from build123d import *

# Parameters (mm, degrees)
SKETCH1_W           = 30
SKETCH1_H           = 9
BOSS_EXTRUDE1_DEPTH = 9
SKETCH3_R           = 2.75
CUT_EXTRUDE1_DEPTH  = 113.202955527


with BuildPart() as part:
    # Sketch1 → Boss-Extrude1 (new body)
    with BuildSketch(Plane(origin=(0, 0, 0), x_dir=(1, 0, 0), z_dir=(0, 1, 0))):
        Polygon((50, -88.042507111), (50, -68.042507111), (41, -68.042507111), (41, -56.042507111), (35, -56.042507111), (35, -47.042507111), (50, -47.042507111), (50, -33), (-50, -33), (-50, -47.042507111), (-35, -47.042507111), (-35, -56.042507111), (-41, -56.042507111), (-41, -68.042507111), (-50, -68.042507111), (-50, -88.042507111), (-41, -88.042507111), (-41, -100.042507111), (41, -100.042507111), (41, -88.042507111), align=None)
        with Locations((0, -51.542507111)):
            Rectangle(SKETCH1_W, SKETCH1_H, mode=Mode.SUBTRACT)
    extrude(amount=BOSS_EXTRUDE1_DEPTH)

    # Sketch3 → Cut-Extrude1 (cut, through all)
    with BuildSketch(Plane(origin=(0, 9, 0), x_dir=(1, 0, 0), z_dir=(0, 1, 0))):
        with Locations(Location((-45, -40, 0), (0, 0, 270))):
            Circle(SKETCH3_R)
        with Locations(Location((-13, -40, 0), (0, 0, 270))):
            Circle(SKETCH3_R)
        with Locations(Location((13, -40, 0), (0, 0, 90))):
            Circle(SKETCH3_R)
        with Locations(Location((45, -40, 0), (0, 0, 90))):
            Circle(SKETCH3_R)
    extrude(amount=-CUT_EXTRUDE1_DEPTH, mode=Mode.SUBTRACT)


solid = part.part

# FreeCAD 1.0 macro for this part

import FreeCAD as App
import Part
import Sketcher
from FreeCAD import Vector
Q = App.Units.Quantity


def add_polygon(sketch, points):
    """Adds a closed chain of lines whose ends are joined by coincident constraints."""
    first, n = sketch.GeometryCount, len(points)
    for a, b in zip(points, points[1:] + points[:1]):
        sketch.addGeometry(Part.LineSegment(App.Vector(*a, 0), App.Vector(*b, 0)), False)
    for i in range(n):
        sketch.addConstraint(Sketcher.Constraint("Coincident", first + i, 2, first + (i + 1) % n, 1))

doc = App.newDocument("Part")
body = doc.addObject("PartDesign::Body", "Body")

sketch1 = doc.addObject("Sketcher::SketchObject", "Sketch")
body.addObject(sketch1)
sketch1.AttachmentSupport = (doc.XZ_Plane, [""])
sketch1.MapMode = "FlatFace"
add_polygon(sketch1, [(50, 88.042507), (50, 68.042507), (41, 68.042507), (41, 56.042507), (35, 56.042507), (35, 47.042507), (50, 47.042507), (50, 33), (-50, 33), (-50, 47.042507), (-35, 47.042507), (-35, 56.042507), (-41, 56.042507), (-41, 68.042507), (-50, 68.042507), (-50, 88.042507), (-41, 88.042507), (-41, 100.042507), (41, 100.042507), (41, 88.042507)])
add_polygon(sketch1, [(15, 56.042507), (-15, 56.042507), (-15, 47.042507), (15, 47.042507)])
sketch1.addConstraint([
    Sketcher.Constraint("Vertical", 0),
    Sketcher.Constraint("Horizontal", 1),
    Sketcher.Constraint("Vertical", 2),
    Sketcher.Constraint("Horizontal", 3),
    Sketcher.Constraint("Vertical", 4),
    Sketcher.Constraint("Horizontal", 5),
    Sketcher.Constraint("Vertical", 6),
    Sketcher.Constraint("Horizontal", 7),
    Sketcher.Constraint("Vertical", 8),
    Sketcher.Constraint("Horizontal", 9),
    Sketcher.Constraint("Vertical", 10),
    Sketcher.Constraint("Horizontal", 11),
    Sketcher.Constraint("Vertical", 12),
    Sketcher.Constraint("Horizontal", 13),
    Sketcher.Constraint("Vertical", 14),
    Sketcher.Constraint("Horizontal", 15),
    Sketcher.Constraint("Vertical", 16),
    Sketcher.Constraint("Horizontal", 17),
    Sketcher.Constraint("Vertical", 18),
    Sketcher.Constraint("Horizontal", 19),
    Sketcher.Constraint("Horizontal", 20),
    Sketcher.Constraint("Vertical", 21),
    Sketcher.Constraint("Horizontal", 22),
    Sketcher.Constraint("Vertical", 23),
    Sketcher.Constraint("Symmetric", 5, 2, 8, 2, -2),
    Sketcher.Constraint("Symmetric", 3, 2, 10, 2, -2),
    Sketcher.Constraint("Symmetric", 1, 2, 12, 2, -2),
    Sketcher.Constraint("Symmetric", 15, 2, 18, 2, -2),
    Sketcher.Constraint("Horizontal", 11, 2, 20, 2),
    Sketcher.Constraint("Horizontal", 9, 2, 21, 2),
    Sketcher.Constraint("Vertical", 0, 2, 5, 2),
    Sketcher.Constraint("Vertical", 8, 2, 13, 2),
    Sketcher.Constraint("Vertical", 12, 2, 15, 2),
    Sketcher.Constraint("Equal", 19, 4),
    Sketcher.Constraint("Equal", 12, 16),
    Sketcher.Constraint("DistanceX", 1, 2, 1, 1, Q("9 mm")),
    Sketcher.Constraint("DistanceX", 3, 2, 3, 1, Q("6 mm")),
    Sketcher.Constraint("DistanceX", 7, 2, 7, 1, Q("100 mm")),
    Sketcher.Constraint("DistanceX", 20, 2, 20, 1, Q("30 mm")),
    Sketcher.Constraint("DistanceY", 0, 2, 0, 1, Q("20 mm")),
    Sketcher.Constraint("DistanceY", 2, 2, 2, 1, Q("12 mm")),
    Sketcher.Constraint("DistanceY", -1, 1, 6, 2, Q("33 mm")),
    Sketcher.Constraint("DistanceX", 20, 2, -1, 1, Q("15 mm")),
    Sketcher.Constraint("DistanceY", 6, 2, 6, 1, Q("14.042507 mm")),
])
pad1 = doc.addObject("PartDesign::Pad", "Pad")
body.addObject(pad1)
pad1.Profile = sketch1
pad1.Length = 9
pad1.Reversed = True

sketch2 = doc.addObject("Sketcher::SketchObject", "Sketch001")
body.addObject(sketch2)
sketch2.AttachmentSupport = (doc.XZ_Plane, [""])
sketch2.MapMode = "FlatFace"
sketch2.AttachmentOffset = App.Placement(Vector(0, 0, -9), App.Rotation())
sketch2.addGeometry([
    Part.Circle(Vector(-45, 40, 0), Vector(0, 0, 1), 2.75),
    Part.Circle(Vector(-13, 40, 0), Vector(0, 0, 1), 2.75),
    Part.Circle(Vector(13, 40, 0), Vector(0, 0, 1), 2.75),
    Part.Circle(Vector(45, 40, 0), Vector(0, 0, 1), 2.75),
], False)
sketch2.addConstraint([
    Sketcher.Constraint("Equal", 0, 1),
    Sketcher.Constraint("Equal", 1, 2),
    Sketcher.Constraint("Equal", 2, 3),
    Sketcher.Constraint("Symmetric", 1, 3, 2, 3, -2),
    Sketcher.Constraint("Symmetric", 0, 3, 3, 3, -2),
    Sketcher.Constraint("Horizontal", 0, 3, 1, 3),
    Sketcher.Constraint("Diameter", 0, Q("5.5 mm")),
    Sketcher.Constraint("DistanceX", 0, 3, -1, 1, Q("45 mm")),
    Sketcher.Constraint("DistanceY", -1, 1, 0, 3, Q("40 mm")),
    Sketcher.Constraint("DistanceX", 1, 3, -1, 1, Q("13 mm")),
])
pocket1 = doc.addObject("PartDesign::Pocket", "Pocket")
body.addObject(pocket1)
pocket1.Profile = sketch2
pocket1.Type = "ThroughAll"
pocket1.Reversed = True

doc.recompute()
